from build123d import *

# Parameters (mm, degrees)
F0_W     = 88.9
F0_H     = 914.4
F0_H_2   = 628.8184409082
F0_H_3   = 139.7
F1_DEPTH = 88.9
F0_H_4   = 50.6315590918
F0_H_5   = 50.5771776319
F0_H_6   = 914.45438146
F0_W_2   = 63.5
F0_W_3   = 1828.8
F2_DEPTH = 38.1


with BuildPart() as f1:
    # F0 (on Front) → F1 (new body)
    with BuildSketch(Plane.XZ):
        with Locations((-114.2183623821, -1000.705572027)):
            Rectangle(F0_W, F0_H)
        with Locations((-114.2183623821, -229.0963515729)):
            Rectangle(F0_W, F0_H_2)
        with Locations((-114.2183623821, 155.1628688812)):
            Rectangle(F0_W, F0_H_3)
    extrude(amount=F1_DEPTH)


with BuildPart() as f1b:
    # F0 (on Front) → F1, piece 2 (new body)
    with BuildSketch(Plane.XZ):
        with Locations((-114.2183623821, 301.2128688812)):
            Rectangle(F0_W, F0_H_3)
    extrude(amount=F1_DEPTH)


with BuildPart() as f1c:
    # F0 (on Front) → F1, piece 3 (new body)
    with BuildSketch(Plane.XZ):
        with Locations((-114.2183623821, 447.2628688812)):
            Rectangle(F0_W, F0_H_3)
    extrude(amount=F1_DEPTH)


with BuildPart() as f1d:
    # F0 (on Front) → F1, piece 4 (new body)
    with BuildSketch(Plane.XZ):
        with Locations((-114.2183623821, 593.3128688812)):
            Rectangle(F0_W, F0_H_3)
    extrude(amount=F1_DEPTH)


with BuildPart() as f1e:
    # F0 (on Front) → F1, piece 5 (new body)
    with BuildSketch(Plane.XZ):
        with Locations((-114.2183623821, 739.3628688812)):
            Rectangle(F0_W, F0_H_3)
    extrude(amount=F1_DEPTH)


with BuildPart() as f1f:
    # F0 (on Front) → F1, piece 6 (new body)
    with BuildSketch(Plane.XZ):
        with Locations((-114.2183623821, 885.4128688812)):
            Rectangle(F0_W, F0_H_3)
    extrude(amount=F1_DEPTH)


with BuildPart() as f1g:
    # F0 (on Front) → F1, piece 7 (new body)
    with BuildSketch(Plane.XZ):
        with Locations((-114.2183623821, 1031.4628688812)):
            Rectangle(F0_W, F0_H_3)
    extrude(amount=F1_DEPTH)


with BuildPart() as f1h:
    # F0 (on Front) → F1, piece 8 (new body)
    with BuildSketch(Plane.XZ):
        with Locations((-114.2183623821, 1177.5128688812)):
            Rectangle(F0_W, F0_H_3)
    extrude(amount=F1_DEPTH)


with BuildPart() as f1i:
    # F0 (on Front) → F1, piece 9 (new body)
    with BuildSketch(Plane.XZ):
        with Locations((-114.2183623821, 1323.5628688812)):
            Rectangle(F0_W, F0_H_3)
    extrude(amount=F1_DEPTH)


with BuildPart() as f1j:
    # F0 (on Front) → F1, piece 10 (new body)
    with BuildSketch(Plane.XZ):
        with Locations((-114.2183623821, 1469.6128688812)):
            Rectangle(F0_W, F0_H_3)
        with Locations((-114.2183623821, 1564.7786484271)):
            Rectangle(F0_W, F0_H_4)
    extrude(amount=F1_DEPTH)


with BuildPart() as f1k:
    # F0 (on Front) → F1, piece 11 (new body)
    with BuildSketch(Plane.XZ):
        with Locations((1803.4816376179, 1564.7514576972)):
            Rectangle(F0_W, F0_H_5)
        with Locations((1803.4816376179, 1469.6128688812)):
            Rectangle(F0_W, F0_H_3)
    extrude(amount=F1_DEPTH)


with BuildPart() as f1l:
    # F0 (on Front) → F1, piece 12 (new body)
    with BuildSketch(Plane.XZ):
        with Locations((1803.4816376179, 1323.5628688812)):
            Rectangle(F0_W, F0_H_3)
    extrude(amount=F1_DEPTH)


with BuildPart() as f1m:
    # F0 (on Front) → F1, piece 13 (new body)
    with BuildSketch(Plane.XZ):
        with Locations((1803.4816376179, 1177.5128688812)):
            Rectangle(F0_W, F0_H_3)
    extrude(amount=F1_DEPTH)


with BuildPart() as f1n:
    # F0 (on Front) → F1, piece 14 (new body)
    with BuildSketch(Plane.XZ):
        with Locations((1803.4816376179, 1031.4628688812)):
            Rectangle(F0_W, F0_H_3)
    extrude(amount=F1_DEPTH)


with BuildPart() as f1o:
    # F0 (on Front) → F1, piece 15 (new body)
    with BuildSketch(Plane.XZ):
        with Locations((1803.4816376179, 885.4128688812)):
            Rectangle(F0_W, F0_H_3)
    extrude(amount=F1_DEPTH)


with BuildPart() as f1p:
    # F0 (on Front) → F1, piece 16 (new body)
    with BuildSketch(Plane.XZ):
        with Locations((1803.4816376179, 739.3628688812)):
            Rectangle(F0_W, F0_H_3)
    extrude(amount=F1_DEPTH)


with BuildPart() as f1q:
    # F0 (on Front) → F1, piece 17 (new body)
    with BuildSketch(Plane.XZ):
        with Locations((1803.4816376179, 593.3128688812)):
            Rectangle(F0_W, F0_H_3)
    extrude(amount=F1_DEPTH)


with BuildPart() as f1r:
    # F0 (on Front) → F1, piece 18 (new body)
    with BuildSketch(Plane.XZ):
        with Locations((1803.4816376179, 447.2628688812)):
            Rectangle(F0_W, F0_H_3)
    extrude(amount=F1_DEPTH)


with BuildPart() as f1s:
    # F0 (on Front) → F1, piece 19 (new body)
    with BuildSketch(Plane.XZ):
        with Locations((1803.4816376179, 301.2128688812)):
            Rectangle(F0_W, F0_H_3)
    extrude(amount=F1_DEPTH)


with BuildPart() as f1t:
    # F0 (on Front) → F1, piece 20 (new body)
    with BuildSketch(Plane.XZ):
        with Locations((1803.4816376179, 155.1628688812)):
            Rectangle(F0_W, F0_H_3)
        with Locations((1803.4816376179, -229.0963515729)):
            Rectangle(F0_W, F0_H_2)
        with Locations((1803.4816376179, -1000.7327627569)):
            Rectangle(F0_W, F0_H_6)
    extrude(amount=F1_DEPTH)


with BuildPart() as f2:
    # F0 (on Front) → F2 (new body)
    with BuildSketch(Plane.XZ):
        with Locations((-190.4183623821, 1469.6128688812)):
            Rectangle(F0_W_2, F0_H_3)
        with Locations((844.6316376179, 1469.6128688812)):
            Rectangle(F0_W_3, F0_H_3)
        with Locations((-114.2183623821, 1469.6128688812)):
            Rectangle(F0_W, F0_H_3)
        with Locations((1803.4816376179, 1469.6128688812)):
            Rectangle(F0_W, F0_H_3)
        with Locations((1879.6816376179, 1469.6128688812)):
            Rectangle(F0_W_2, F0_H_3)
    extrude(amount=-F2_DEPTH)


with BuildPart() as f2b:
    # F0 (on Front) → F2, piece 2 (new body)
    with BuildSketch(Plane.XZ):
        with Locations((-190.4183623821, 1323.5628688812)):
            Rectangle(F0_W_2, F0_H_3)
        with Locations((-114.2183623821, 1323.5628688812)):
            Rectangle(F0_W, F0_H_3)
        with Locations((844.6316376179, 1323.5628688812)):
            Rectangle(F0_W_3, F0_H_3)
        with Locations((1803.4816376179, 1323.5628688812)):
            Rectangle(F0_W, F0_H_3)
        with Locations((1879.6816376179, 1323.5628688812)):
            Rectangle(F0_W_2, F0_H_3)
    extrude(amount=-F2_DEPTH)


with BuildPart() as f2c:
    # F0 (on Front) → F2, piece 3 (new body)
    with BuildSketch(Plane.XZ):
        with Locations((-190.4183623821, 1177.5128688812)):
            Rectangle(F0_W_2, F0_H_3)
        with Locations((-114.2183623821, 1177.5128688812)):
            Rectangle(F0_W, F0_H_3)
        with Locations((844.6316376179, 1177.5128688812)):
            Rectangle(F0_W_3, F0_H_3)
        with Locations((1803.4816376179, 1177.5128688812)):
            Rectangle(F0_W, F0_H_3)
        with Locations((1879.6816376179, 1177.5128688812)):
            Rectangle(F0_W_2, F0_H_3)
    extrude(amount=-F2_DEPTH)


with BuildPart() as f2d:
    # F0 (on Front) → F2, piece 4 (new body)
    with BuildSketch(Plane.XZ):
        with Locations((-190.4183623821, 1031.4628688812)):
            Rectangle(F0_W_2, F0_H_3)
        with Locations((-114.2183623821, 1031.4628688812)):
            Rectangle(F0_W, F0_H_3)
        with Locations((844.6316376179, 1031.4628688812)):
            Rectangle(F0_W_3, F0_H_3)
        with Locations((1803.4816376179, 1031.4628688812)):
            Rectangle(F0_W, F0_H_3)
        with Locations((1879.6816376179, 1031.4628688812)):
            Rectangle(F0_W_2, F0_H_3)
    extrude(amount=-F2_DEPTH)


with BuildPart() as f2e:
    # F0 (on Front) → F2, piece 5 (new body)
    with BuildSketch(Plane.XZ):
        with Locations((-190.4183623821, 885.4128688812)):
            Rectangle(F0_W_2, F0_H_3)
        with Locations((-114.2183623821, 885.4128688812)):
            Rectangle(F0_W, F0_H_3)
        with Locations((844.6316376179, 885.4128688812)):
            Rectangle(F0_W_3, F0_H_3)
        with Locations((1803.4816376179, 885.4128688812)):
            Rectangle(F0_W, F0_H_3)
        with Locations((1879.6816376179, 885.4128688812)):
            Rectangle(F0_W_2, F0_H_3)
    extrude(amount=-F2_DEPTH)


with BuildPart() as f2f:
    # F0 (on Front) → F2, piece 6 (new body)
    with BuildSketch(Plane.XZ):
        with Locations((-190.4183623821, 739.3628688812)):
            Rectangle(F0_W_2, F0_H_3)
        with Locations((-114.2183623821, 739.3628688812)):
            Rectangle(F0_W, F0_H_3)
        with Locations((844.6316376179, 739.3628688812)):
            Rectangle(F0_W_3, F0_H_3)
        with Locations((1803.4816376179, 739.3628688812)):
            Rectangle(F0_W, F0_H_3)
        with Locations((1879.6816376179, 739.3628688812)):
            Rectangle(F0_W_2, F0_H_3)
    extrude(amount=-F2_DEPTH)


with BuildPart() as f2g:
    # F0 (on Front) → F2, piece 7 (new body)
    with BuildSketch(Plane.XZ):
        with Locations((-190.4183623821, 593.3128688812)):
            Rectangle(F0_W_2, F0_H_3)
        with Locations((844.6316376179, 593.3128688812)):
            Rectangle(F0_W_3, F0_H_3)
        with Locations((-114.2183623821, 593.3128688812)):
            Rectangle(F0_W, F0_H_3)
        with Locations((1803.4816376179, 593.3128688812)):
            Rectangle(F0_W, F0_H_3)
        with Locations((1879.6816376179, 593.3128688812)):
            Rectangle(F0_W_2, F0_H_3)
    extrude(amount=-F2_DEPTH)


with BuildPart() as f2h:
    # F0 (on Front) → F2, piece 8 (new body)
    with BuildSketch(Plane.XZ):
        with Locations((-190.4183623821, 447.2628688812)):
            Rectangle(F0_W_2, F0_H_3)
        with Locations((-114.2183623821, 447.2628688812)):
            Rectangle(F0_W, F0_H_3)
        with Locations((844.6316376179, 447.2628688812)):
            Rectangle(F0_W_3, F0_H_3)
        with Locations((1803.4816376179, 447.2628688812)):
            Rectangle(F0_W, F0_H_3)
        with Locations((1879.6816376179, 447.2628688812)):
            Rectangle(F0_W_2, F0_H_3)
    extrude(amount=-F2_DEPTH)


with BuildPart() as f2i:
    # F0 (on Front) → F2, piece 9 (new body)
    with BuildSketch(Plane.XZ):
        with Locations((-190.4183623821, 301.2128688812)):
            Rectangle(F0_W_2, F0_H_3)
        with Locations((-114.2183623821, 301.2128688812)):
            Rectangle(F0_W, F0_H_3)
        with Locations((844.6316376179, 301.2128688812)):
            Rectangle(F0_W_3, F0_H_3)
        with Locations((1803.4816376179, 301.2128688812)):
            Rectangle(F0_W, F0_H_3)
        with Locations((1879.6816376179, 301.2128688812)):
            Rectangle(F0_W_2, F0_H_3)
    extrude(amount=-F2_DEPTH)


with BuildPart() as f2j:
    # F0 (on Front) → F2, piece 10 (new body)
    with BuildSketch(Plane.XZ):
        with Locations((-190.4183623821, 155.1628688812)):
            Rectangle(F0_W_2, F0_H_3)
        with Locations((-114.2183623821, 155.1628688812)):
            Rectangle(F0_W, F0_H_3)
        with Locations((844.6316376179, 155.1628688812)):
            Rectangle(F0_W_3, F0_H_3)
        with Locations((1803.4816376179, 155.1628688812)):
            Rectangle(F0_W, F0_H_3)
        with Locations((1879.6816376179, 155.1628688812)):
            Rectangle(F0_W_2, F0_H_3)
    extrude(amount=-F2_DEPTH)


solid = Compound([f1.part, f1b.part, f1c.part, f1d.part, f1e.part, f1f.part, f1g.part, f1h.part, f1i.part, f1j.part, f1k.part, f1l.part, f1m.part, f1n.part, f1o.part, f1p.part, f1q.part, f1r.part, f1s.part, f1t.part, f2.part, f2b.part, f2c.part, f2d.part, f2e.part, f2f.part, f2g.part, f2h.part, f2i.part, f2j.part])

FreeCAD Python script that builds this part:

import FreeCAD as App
import Part
import Sketcher

V = App.Vector
Q = App.Units.Quantity


def add_polygon(sketch, points):
    """Adds a closed chain of lines whose ends are joined by coincident constraints."""
    first, n = sketch.GeometryCount, len(points)
    for a, b in zip(points, points[1:] + points[:1]):
        sketch.addGeometry(Part.LineSegment(App.Vector(*a, 0), App.Vector(*b, 0)), False)
    for i in range(n):
        sketch.addConstraint(Sketcher.Constraint("Coincident", first + i, 2, first + (i + 1) % n, 1))

doc = App.newDocument("Part")
body = doc.addObject("PartDesign::Body", "Body")

sketch1 = body.newObject("Sketcher::SketchObject", "Sketch")
sketch1.AttachmentSupport = (doc.getObject("XZ_Plane"), [""])
sketch1.MapMode = "FlatFace"
add_polygon(sketch1, [(-159, -1458), (-70, -1458), (-70, 225), (-159, 225)])
sketch1.addConstraint([
    Sketcher.Constraint("Horizontal", 0),
    Sketcher.Constraint("Vertical", 1),
    Sketcher.Constraint("Horizontal", 2),
    Sketcher.Constraint("Vertical", 3),
    Sketcher.Constraint("DistanceX", 0, 1, 0, 2, Q("3.5 in")),
    Sketcher.Constraint("DistanceY", 1, 1, 1, 2, Q("1682.918441 mm")),
    Sketcher.Constraint("DistanceY", -1, 1, 1, 2, Q("225.012869 mm")),
    Sketcher.Constraint("DistanceX", 0, 2, -1, 1, Q("69.768362 mm")),
])
pad1 = body.newObject("PartDesign::Pad", "Pad")
pad1.Profile = sketch1
pad1.Length = Q("3.5 in")
body2 = doc.addObject("PartDesign::Body", "Body001")

sketch2 = body2.newObject("Sketcher::SketchObject", "Sketch001")
sketch2.AttachmentSupport = (doc.getObject("XZ_Plane001"), [""])
sketch2.MapMode = "FlatFace"
add_polygon(sketch2, [(-159, 371), (-159, 231), (-70, 231), (-70, 371)])
sketch2.addConstraint([
    Sketcher.Constraint("Vertical", 0),
    Sketcher.Constraint("Horizontal", 1),
    Sketcher.Constraint("Vertical", 2),
    Sketcher.Constraint("Horizontal", 3),
    Sketcher.Constraint("DistanceX", 1, 1, 1, 2, Q("3.5 in")),
    Sketcher.Constraint("DistanceY", 0, 2, 0, 1, Q("5.5 in")),
    Sketcher.Constraint("DistanceY", -1, 1, 0, 2, Q("231.362869 mm")),
    Sketcher.Constraint("DistanceX", 0, 2, -1, 1, Q("158.668362 mm")),
])
pad2 = body2.newObject("PartDesign::Pad", "Pad001")
pad2.Profile = sketch2
pad2.Length = Q("3.5 in")
body3 = doc.addObject("PartDesign::Body", "Body002")

sketch3 = body3.newObject("Sketcher::SketchObject", "Sketch002")
sketch3.AttachmentSupport = (doc.getObject("XZ_Plane002"), [""])
sketch3.MapMode = "FlatFace"
add_polygon(sketch3, [(-159, 517), (-159, 377), (-70, 377), (-70, 517)])
sketch3.addConstraint([
    Sketcher.Constraint("Vertical", 0),
    Sketcher.Constraint("Horizontal", 1),
    Sketcher.Constraint("Vertical", 2),
    Sketcher.Constraint("Horizontal", 3),
    Sketcher.Constraint("DistanceX", 1, 1, 1, 2, Q("3.5 in")),
    Sketcher.Constraint("DistanceY", 0, 2, 0, 1, Q("5.5 in")),
    Sketcher.Constraint("DistanceY", -1, 1, 0, 2, Q("377.412869 mm")),
    Sketcher.Constraint("DistanceX", 0, 2, -1, 1, Q("158.668362 mm")),
])
pad3 = body3.newObject("PartDesign::Pad", "Pad002")
pad3.Profile = sketch3
pad3.Length = Q("3.5 in")
body4 = doc.addObject("PartDesign::Body", "Body003")

sketch4 = body4.newObject("Sketcher::SketchObject", "Sketch003")
sketch4.AttachmentSupport = (doc.getObject("XZ_Plane003"), [""])
sketch4.MapMode = "FlatFace"
add_polygon(sketch4, [(-159, 663), (-159, 523), (-70, 523), (-70, 663)])
sketch4.addConstraint([
    Sketcher.Constraint("Vertical", 0),
    Sketcher.Constraint("Horizontal", 1),
    Sketcher.Constraint("Vertical", 2),
    Sketcher.Constraint("Horizontal", 3),
    Sketcher.Constraint("DistanceX", 1, 1, 1, 2, Q("3.5 in")),
    Sketcher.Constraint("DistanceY", 0, 2, 0, 1, Q("5.5 in")),
    Sketcher.Constraint("DistanceY", -1, 1, 0, 2, Q("523.462869 mm")),
    Sketcher.Constraint("DistanceX", 0, 2, -1, 1, Q("158.668362 mm")),
])
pad4 = body4.newObject("PartDesign::Pad", "Pad003")
pad4.Profile = sketch4
pad4.Length = Q("3.5 in")
body5 = doc.addObject("PartDesign::Body", "Body004")

sketch5 = body5.newObject("Sketcher::SketchObject", "Sketch004")
sketch5.AttachmentSupport = (doc.getObject("XZ_Plane004"), [""])
sketch5.MapMode = "FlatFace"
add_polygon(sketch5, [(-159, 809), (-159, 670), (-70, 670), (-70, 809)])
sketch5.addConstraint([
    Sketcher.Constraint("Vertical", 0),
    Sketcher.Constraint("Horizontal", 1),
    Sketcher.Constraint("Vertical", 2),
    Sketcher.Constraint("Horizontal", 3),
    Sketcher.Constraint("DistanceX", 1, 1, 1, 2, Q("3.5 in")),
    Sketcher.Constraint("DistanceY", 0, 2, 0, 1, Q("5.5 in")),
    Sketcher.Constraint("DistanceY", -1, 1, 0, 2, Q("669.512869 mm")),
    Sketcher.Constraint("DistanceX", 0, 2, -1, 1, Q("158.668362 mm")),
])
pad5 = body5.newObject("PartDesign::Pad", "Pad004")
pad5.Profile = sketch5
pad5.Length = Q("3.5 in")
body6 = doc.addObject("PartDesign::Body", "Body005")

sketch6 = body6.newObject("Sketcher::SketchObject", "Sketch005")
sketch6.AttachmentSupport = (doc.getObject("XZ_Plane005"), [""])
sketch6.MapMode = "FlatFace"
add_polygon(sketch6, [(-159, 955), (-159, 816), (-70, 816), (-70, 955)])
sketch6.addConstraint([
    Sketcher.Constraint("Vertical", 0),
    Sketcher.Constraint("Horizontal", 1),
    Sketcher.Constraint("Vertical", 2),
    Sketcher.Constraint("Horizontal", 3),
    Sketcher.Constraint("DistanceX", 1, 1, 1, 2, Q("3.5 in")),
    Sketcher.Constraint("DistanceY", 0, 2, 0, 1, Q("5.5 in")),
    Sketcher.Constraint("DistanceY", -1, 1, 0, 2, Q("815.562869 mm")),
    Sketcher.Constraint("DistanceX", 0, 2, -1, 1, Q("158.668362 mm")),
])
pad6 = body6.newObject("PartDesign::Pad", "Pad005")
pad6.Profile = sketch6
pad6.Length = Q("3.5 in")
body7 = doc.addObject("PartDesign::Body", "Body006")

sketch7 = body7.newObject("Sketcher::SketchObject", "Sketch006")
sketch7.AttachmentSupport = (doc.getObject("XZ_Plane006"), [""])
sketch7.MapMode = "FlatFace"
add_polygon(sketch7, [(-159, 1101), (-159, 962), (-70, 962), (-70, 1101)])
sketch7.addConstraint([
    Sketcher.Constraint("Vertical", 0),
    Sketcher.Constraint("Horizontal", 1),
    Sketcher.Constraint("Vertical", 2),
    Sketcher.Constraint("Horizontal", 3),
    Sketcher.Constraint("DistanceX", 1, 1, 1, 2, Q("3.5 in")),
    Sketcher.Constraint("DistanceY", 0, 2, 0, 1, Q("5.5 in")),
    Sketcher.Constraint("DistanceY", -1, 1, 0, 2, Q("961.612869 mm")),
    Sketcher.Constraint("DistanceX", 0, 2, -1, 1, Q("158.668362 mm")),
])
pad7 = body7.newObject("PartDesign::Pad", "Pad006")
pad7.Profile = sketch7
pad7.Length = Q("3.5 in")
body8 = doc.addObject("PartDesign::Body", "Body007")

sketch8 = body8.newObject("Sketcher::SketchObject", "Sketch007")
sketch8.AttachmentSupport = (doc.getObject("XZ_Plane007"), [""])
sketch8.MapMode = "FlatFace"
add_polygon(sketch8, [(-159, 1247), (-159, 1108), (-70, 1108), (-70, 1247)])
sketch8.addConstraint([
    Sketcher.Constraint("Vertical", 0),
    Sketcher.Constraint("Horizontal", 1),
    Sketcher.Constraint("Vertical", 2),
    Sketcher.Constraint("Horizontal", 3),
    Sketcher.Constraint("DistanceX", 1, 1, 1, 2, Q("3.5 in")),
    Sketcher.Constraint("DistanceY", 0, 2, 0, 1, Q("5.5 in")),
    Sketcher.Constraint("DistanceY", -1, 1, 0, 2, Q("1107.662869 mm")),
    Sketcher.Constraint("DistanceX", 0, 2, -1, 1, Q("158.668362 mm")),
])
pad8 = body8.newObject("PartDesign::Pad", "Pad007")
pad8.Profile = sketch8
pad8.Length = Q("3.5 in")
body9 = doc.addObject("PartDesign::Body", "Body008")

sketch9 = body9.newObject("Sketcher::SketchObject", "Sketch008")
sketch9.AttachmentSupport = (doc.getObject("XZ_Plane008"), [""])
sketch9.MapMode = "FlatFace"
add_polygon(sketch9, [(-159, 1393), (-159, 1254), (-70, 1254), (-70, 1393)])
sketch9.addConstraint([
    Sketcher.Constraint("Vertical", 0),
    Sketcher.Constraint("Horizontal", 1),
    Sketcher.Constraint("Vertical", 2),
    Sketcher.Constraint("Horizontal", 3),
    Sketcher.Constraint("DistanceX", 1, 1, 1, 2, Q("3.5 in")),
    Sketcher.Constraint("DistanceY", 0, 2, 0, 1, Q("5.5 in")),
    Sketcher.Constraint("DistanceY", -1, 1, 0, 2, Q("1253.712869 mm")),
    Sketcher.Constraint("DistanceX", 0, 2, -1, 1, Q("158.668362 mm")),
])
pad9 = body9.newObject("PartDesign::Pad", "Pad008")
pad9.Profile = sketch9
pad9.Length = Q("3.5 in")
body10 = doc.addObject("PartDesign::Body", "Body009")

sketch10 = body10.newObject("Sketcher::SketchObject", "Sketch009")
sketch10.AttachmentSupport = (doc.getObject("XZ_Plane009"), [""])
sketch10.MapMode = "FlatFace"
add_polygon(sketch10, [(-159, 1400), (-70, 1400), (-70, 1590), (-159, 1590)])
sketch10.addConstraint([
    Sketcher.Constraint("Horizontal", 0),
    Sketcher.Constraint("Vertical", 1),
    Sketcher.Constraint("Horizontal", 2),
    Sketcher.Constraint("Vertical", 3),
    Sketcher.Constraint("DistanceX", 0, 1, 0, 2, Q("3.5 in")),
    Sketcher.Constraint("DistanceY", 1, 1, 1, 2, Q("190.331559 mm")),
    Sketcher.Constraint("DistanceY", -1, 1, 0, 2, Q("1399.762869 mm")),
    Sketcher.Constraint("DistanceX", 0, 2, -1, 1, Q("69.768362 mm")),
])
pad10 = body10.newObject("PartDesign::Pad", "Pad009")
pad10.Profile = sketch10
pad10.Length = Q("3.5 in")
body11 = doc.addObject("PartDesign::Body", "Body010")

sketch11 = body11.newObject("Sketcher::SketchObject", "Sketch010")
sketch11.AttachmentSupport = (doc.getObject("XZ_Plane010"), [""])
sketch11.MapMode = "FlatFace"
add_polygon(sketch11, [(1759, 1590), (1759, 1400), (1848, 1400), (1848, 1590)])
sketch11.addConstraint([
    Sketcher.Constraint("Vertical", 0),
    Sketcher.Constraint("Horizontal", 1),
    Sketcher.Constraint("Vertical", 2),
    Sketcher.Constraint("Horizontal", 3),
    Sketcher.Constraint("DistanceX", 1, 1, 1, 2, Q("3.5 in")),
    Sketcher.Constraint("DistanceY", 0, 2, 0, 1, Q("190.277178 mm")),
    Sketcher.Constraint("DistanceY", -1, 1, 0, 2, Q("1399.762869 mm")),
    Sketcher.Constraint("DistanceX", -1, 1, 0, 2, Q("1759.031638 mm")),
])
pad11 = body11.newObject("PartDesign::Pad", "Pad010")
pad11.Profile = sketch11
pad11.Length = Q("3.5 in")
body12 = doc.addObject("PartDesign::Body", "Body011")

sketch12 = body12.newObject("Sketcher::SketchObject", "Sketch011")
sketch12.AttachmentSupport = (doc.getObject("XZ_Plane011"), [""])
sketch12.MapMode = "FlatFace"
add_polygon(sketch12, [(1759, 1393), (1759, 1254), (1848, 1254), (1848, 1393)])
sketch12.addConstraint([
    Sketcher.Constraint("Vertical", 0),
    Sketcher.Constraint("Horizontal", 1),
    Sketcher.Constraint("Vertical", 2),
    Sketcher.Constraint("Horizontal", 3),
    Sketcher.Constraint("DistanceX", 1, 1, 1, 2, Q("3.5 in")),
    Sketcher.Constraint("DistanceY", 0, 2, 0, 1, Q("5.5 in")),
    Sketcher.Constraint("DistanceY", -1, 1, 0, 2, Q("1253.712869 mm")),
    Sketcher.Constraint("DistanceX", -1, 1, 0, 2, Q("1759.031638 mm")),
])
pad12 = body12.newObject("PartDesign::Pad", "Pad011")
pad12.Profile = sketch12
pad12.Length = Q("3.5 in")
body13 = doc.addObject("PartDesign::Body", "Body012")

sketch13 = body13.newObject("Sketcher::SketchObject", "Sketch012")
sketch13.AttachmentSupport = (doc.getObject("XZ_Plane012"), [""])
sketch13.MapMode = "FlatFace"
add_polygon(sketch13, [(1759, 1247), (1759, 1108), (1848, 1108), (1848, 1247)])
sketch13.addConstraint([
    Sketcher.Constraint("Vertical", 0),
    Sketcher.Constraint("Horizontal", 1),
    Sketcher.Constraint("Vertical", 2),
    Sketcher.Constraint("Horizontal", 3),
    Sketcher.Constraint("DistanceX", 1, 1, 1, 2, Q("3.5 in")),
    Sketcher.Constraint("DistanceY", 0, 2, 0, 1, Q("5.5 in")),
    Sketcher.Constraint("DistanceY", -1, 1, 0, 2, Q("1107.662869 mm")),
    Sketcher.Constraint("DistanceX", -1, 1, 0, 2, Q("1759.031638 mm")),
])
pad13 = body13.newObject("PartDesign::Pad", "Pad012")
pad13.Profile = sketch13
pad13.Length = Q("3.5 in")
body14 = doc.addObject("PartDesign::Body", "Body013")

sketch14 = body14.newObject("Sketcher::SketchObject", "Sketch013")
sketch14.AttachmentSupport = (doc.getObject("XZ_Plane013"), [""])
sketch14.MapMode = "FlatFace"
add_polygon(sketch14, [(1759, 1101), (1759, 962), (1848, 962), (1848, 1101)])
sketch14.addConstraint([
    Sketcher.Constraint("Vertical", 0),
    Sketcher.Constraint("Horizontal", 1),
    Sketcher.Constraint("Vertical", 2),
    Sketcher.Constraint("Horizontal", 3),
    Sketcher.Constraint("DistanceX", 1, 1, 1, 2, Q("3.5 in")),
    Sketcher.Constraint("DistanceY", 0, 2, 0, 1, Q("5.5 in")),
    Sketcher.Constraint("DistanceY", -1, 1, 0, 2, Q("961.612869 mm")),
    Sketcher.Constraint("DistanceX", -1, 1, 0, 2, Q("1759.031638 mm")),
])
pad14 = body14.newObject("PartDesign::Pad", "Pad013")
pad14.Profile = sketch14
pad14.Length = Q("3.5 in")
body15 = doc.addObject("PartDesign::Body", "Body014")

sketch15 = body15.newObject("Sketcher::SketchObject", "Sketch014")
sketch15.AttachmentSupport = (doc.getObject("XZ_Plane014"), [""])
sketch15.MapMode = "FlatFace"
add_polygon(sketch15, [(1759, 955), (1759, 816), (1848, 816), (1848, 955)])
sketch15.addConstraint([
    Sketcher.Constraint("Vertical", 0),
    Sketcher.Constraint("Horizontal", 1),
    Sketcher.Constraint("Vertical", 2),
    Sketcher.Constraint("Horizontal", 3),
    Sketcher.Constraint("DistanceX", 1, 1, 1, 2, Q("3.5 in")),
    Sketcher.Constraint("DistanceY", 0, 2, 0, 1, Q("5.5 in")),
    Sketcher.Constraint("DistanceY", -1, 1, 0, 2, Q("815.562869 mm")),
    Sketcher.Constraint("DistanceX", -1, 1, 0, 2, Q("1759.031638 mm")),
])
pad15 = body15.newObject("PartDesign::Pad", "Pad014")
pad15.Profile = sketch15
pad15.Length = Q("3.5 in")
body16 = doc.addObject("PartDesign::Body", "Body015")

sketch16 = body16.newObject("Sketcher::SketchObject", "Sketch015")
sketch16.AttachmentSupport = (doc.getObject("XZ_Plane015"), [""])
sketch16.MapMode = "FlatFace"
add_polygon(sketch16, [(1759, 809), (1759, 670), (1848, 670), (1848, 809)])
sketch16.addConstraint([
    Sketcher.Constraint("Vertical", 0),
    Sketcher.Constraint("Horizontal", 1),
    Sketcher.Constraint("Vertical", 2),
    Sketcher.Constraint("Horizontal", 3),
    Sketcher.Constraint("DistanceX", 1, 1, 1, 2, Q("3.5 in")),
    Sketcher.Constraint("DistanceY", 0, 2, 0, 1, Q("5.5 in")),
    Sketcher.Constraint("DistanceY", -1, 1, 0, 2, Q("669.512869 mm")),
    Sketcher.Constraint("DistanceX", -1, 1, 0, 2, Q("1759.031638 mm")),
])
pad16 = body16.newObject("PartDesign::Pad", "Pad015")
pad16.Profile = sketch16
pad16.Length = Q("3.5 in")
body17 = doc.addObject("PartDesign::Body", "Body016")

sketch17 = body17.newObject("Sketcher::SketchObject", "Sketch016")
sketch17.AttachmentSupport = (doc.getObject("XZ_Plane016"), [""])
sketch17.MapMode = "FlatFace"
add_polygon(sketch17, [(1759, 663), (1759, 523), (1848, 523), (1848, 663)])
sketch17.addConstraint([
    Sketcher.Constraint("Vertical", 0),
    Sketcher.Constraint("Horizontal", 1),
    Sketcher.Constraint("Vertical", 2),
    Sketcher.Constraint("Horizontal", 3),
    Sketcher.Constraint("DistanceX", 1, 1, 1, 2, Q("3.5 in")),
    Sketcher.Constraint("DistanceY", 0, 2, 0, 1, Q("5.5 in")),
    Sketcher.Constraint("DistanceY", -1, 1, 0, 2, Q("523.462869 mm")),
    Sketcher.Constraint("DistanceX", -1, 1, 0, 2, Q("1759.031638 mm")),
])
pad17 = body17.newObject("PartDesign::Pad", "Pad016")
pad17.Profile = sketch17
pad17.Length = Q("3.5 in")
body18 = doc.addObject("PartDesign::Body", "Body017")

sketch18 = body18.newObject("Sketcher::SketchObject", "Sketch017")
sketch18.AttachmentSupport = (doc.getObject("XZ_Plane017"), [""])
sketch18.MapMode = "FlatFace"
add_polygon(sketch18, [(1759, 517), (1759, 377), (1848, 377), (1848, 517)])
sketch18.addConstraint([
    Sketcher.Constraint("Vertical", 0),
    Sketcher.Constraint("Horizontal", 1),
    Sketcher.Constraint("Vertical", 2),
    Sketcher.Constraint("Horizontal", 3),
    Sketcher.Constraint("DistanceX", 1, 1, 1, 2, Q("3.5 in")),
    Sketcher.Constraint("DistanceY", 0, 2, 0, 1, Q("5.5 in")),
    Sketcher.Constraint("DistanceY", -1, 1, 0, 2, Q("377.412869 mm")),
    Sketcher.Constraint("DistanceX", -1, 1, 0, 2, Q("1759.031638 mm")),
])
pad18 = body18.newObject("PartDesign::Pad", "Pad017")
pad18.Profile = sketch18
pad18.Length = Q("3.5 in")
body19 = doc.addObject("PartDesign::Body", "Body018")

sketch19 = body19.newObject("Sketcher::SketchObject", "Sketch018")
sketch19.AttachmentSupport = (doc.getObject("XZ_Plane018"), [""])
sketch19.MapMode = "FlatFace"
add_polygon(sketch19, [(1759, 371), (1759, 231), (1848, 231), (1848, 371)])
sketch19.addConstraint([
    Sketcher.Constraint("Vertical", 0),
    Sketcher.Constraint("Horizontal", 1),
    Sketcher.Constraint("Vertical", 2),
    Sketcher.Constraint("Horizontal", 3),
    Sketcher.Constraint("DistanceX", 1, 1, 1, 2, Q("3.5 in")),
    Sketcher.Constraint("DistanceY", 0, 2, 0, 1, Q("5.5 in")),
    Sketcher.Constraint("DistanceY", -1, 1, 0, 2, Q("231.362869 mm")),
    Sketcher.Constraint("DistanceX", -1, 1, 0, 2, Q("1759.031638 mm")),
])
pad19 = body19.newObject("PartDesign::Pad", "Pad018")
pad19.Profile = sketch19
pad19.Length = Q("3.5 in")
body20 = doc.addObject("PartDesign::Body", "Body019")

sketch20 = body20.newObject("Sketcher::SketchObject", "Sketch019")
sketch20.AttachmentSupport = (doc.getObject("XZ_Plane019"), [""])
sketch20.MapMode = "FlatFace"
add_polygon(sketch20, [(1759, 225), (1759, -1458), (1848, -1458), (1848, 225)])
sketch20.addConstraint([
    Sketcher.Constraint("Vertical", 0),
    Sketcher.Constraint("Horizontal", 1),
    Sketcher.Constraint("Vertical", 2),
    Sketcher.Constraint("Horizontal", 3),
    Sketcher.Constraint("DistanceX", 1, 1, 1, 2, Q("3.5 in")),
    Sketcher.Constraint("DistanceY", 0, 2, 0, 1, Q("1682.972822 mm")),
    Sketcher.Constraint("DistanceY", -1, 1, 2, 2, Q("225.012869 mm")),
    Sketcher.Constraint("DistanceX", -1, 1, 0, 2, Q("1759.031638 mm")),
])
pad20 = body20.newObject("PartDesign::Pad", "Pad019")
pad20.Profile = sketch20
pad20.Length = Q("3.5 in")
body21 = doc.addObject("PartDesign::Body", "Body020")

sketch21 = body21.newObject("Sketcher::SketchObject", "Sketch020")
sketch21.AttachmentSupport = (doc.getObject("XZ_Plane020"), [""])
sketch21.MapMode = "FlatFace"
add_polygon(sketch21, [(-222, 1539), (-222, 1400), (1911, 1400), (1911, 1539)])
sketch21.addConstraint([
    Sketcher.Constraint("Vertical", 0),
    Sketcher.Constraint("Horizontal", 1),
    Sketcher.Constraint("Vertical", 2),
    Sketcher.Constraint("Horizontal", 3),
    Sketcher.Constraint("DistanceX", 1, 1, 1, 2, Q("84 in")),
    Sketcher.Constraint("DistanceY", 0, 2, 0, 1, Q("5.5 in")),
    Sketcher.Constraint("DistanceY", -1, 1, 0, 2, Q("1399.762869 mm")),
    Sketcher.Constraint("DistanceX", 0, 2, -1, 1, Q("222.168362 mm")),
])
pad21 = body21.newObject("PartDesign::Pad", "Pad020")
pad21.Profile = sketch21
pad21.Length = Q("1.5 in")
pad21.Reversed = True
body22 = doc.addObject("PartDesign::Body", "Body021")

sketch22 = body22.newObject("Sketcher::SketchObject", "Sketch021")
sketch22.AttachmentSupport = (doc.getObject("XZ_Plane021"), [""])
sketch22.MapMode = "FlatFace"
add_polygon(sketch22, [(-222, 1393), (-222, 1254), (1911, 1254), (1911, 1393)])
sketch22.addConstraint([
    Sketcher.Constraint("Vertical", 0),
    Sketcher.Constraint("Horizontal", 1),
    Sketcher.Constraint("Vertical", 2),
    Sketcher.Constraint("Horizontal", 3),
    Sketcher.Constraint("DistanceX", 1, 1, 1, 2, Q("84 in")),
    Sketcher.Constraint("DistanceY", 0, 2, 0, 1, Q("5.5 in")),
    Sketcher.Constraint("DistanceY", -1, 1, 0, 2, Q("1253.712869 mm")),
    Sketcher.Constraint("DistanceX", 0, 2, -1, 1, Q("222.168362 mm")),
])
pad22 = body22.newObject("PartDesign::Pad", "Pad021")
pad22.Profile = sketch22
pad22.Length = Q("1.5 in")
pad22.Reversed = True
body23 = doc.addObject("PartDesign::Body", "Body022")

sketch23 = body23.newObject("Sketcher::SketchObject", "Sketch022")
sketch23.AttachmentSupport = (doc.getObject("XZ_Plane022"), [""])
sketch23.MapMode = "FlatFace"
add_polygon(sketch23, [(-222, 1247), (-222, 1108), (1911, 1108), (1911, 1247)])
sketch23.addConstraint([
    Sketcher.Constraint("Vertical", 0),
    Sketcher.Constraint("Horizontal", 1),
    Sketcher.Constraint("Vertical", 2),
    Sketcher.Constraint("Horizontal", 3),
    Sketcher.Constraint("DistanceX", 1, 1, 1, 2, Q("84 in")),
    Sketcher.Constraint("DistanceY", 0, 2, 0, 1, Q("5.5 in")),
    Sketcher.Constraint("DistanceY", -1, 1, 0, 2, Q("1107.662869 mm")),
    Sketcher.Constraint("DistanceX", 0, 2, -1, 1, Q("222.168362 mm")),
])
pad23 = body23.newObject("PartDesign::Pad", "Pad022")
pad23.Profile = sketch23
pad23.Length = Q("1.5 in")
pad23.Reversed = True
body24 = doc.addObject("PartDesign::Body", "Body023")

sketch24 = body24.newObject("Sketcher::SketchObject", "Sketch023")
sketch24.AttachmentSupport = (doc.getObject("XZ_Plane023"), [""])
sketch24.MapMode = "FlatFace"
add_polygon(sketch24, [(-222, 1101), (-222, 962), (1911, 962), (1911, 1101)])
sketch24.addConstraint([
    Sketcher.Constraint("Vertical", 0),
    Sketcher.Constraint("Horizontal", 1),
    Sketcher.Constraint("Vertical", 2),
    Sketcher.Constraint("Horizontal", 3),
    Sketcher.Constraint("DistanceX", 1, 1, 1, 2, Q("84 in")),
    Sketcher.Constraint("DistanceY", 0, 2, 0, 1, Q("5.5 in")),
    Sketcher.Constraint("DistanceY", -1, 1, 0, 2, Q("961.612869 mm")),
    Sketcher.Constraint("DistanceX", 0, 2, -1, 1, Q("222.168362 mm")),
])
pad24 = body24.newObject("PartDesign::Pad", "Pad023")
pad24.Profile = sketch24
pad24.Length = Q("1.5 in")
pad24.Reversed = True
body25 = doc.addObject("PartDesign::Body", "Body024")

sketch25 = body25.newObject("Sketcher::SketchObject", "Sketch024")
sketch25.AttachmentSupport = (doc.getObject("XZ_Plane024"), [""])
sketch25.MapMode = "FlatFace"
add_polygon(sketch25, [(-222, 955), (-222, 816), (1911, 816), (1911, 955)])
sketch25.addConstraint([
    Sketcher.Constraint("Vertical", 0),
    Sketcher.Constraint("Horizontal", 1),
    Sketcher.Constraint("Vertical", 2),
    Sketcher.Constraint("Horizontal", 3),
    Sketcher.Constraint("DistanceX", 1, 1, 1, 2, Q("84 in")),
    Sketcher.Constraint("DistanceY", 0, 2, 0, 1, Q("5.5 in")),
    Sketcher.Constraint("DistanceY", -1, 1, 0, 2, Q("815.562869 mm")),
    Sketcher.Constraint("DistanceX", 0, 2, -1, 1, Q("222.168362 mm")),
])
pad25 = body25.newObject("PartDesign::Pad", "Pad024")
pad25.Profile = sketch25
pad25.Length = Q("1.5 in")
pad25.Reversed = True
body26 = doc.addObject("PartDesign::Body", "Body025")

sketch26 = body26.newObject("Sketcher::SketchObject", "Sketch025")
sketch26.AttachmentSupport = (doc.getObject("XZ_Plane025"), [""])
sketch26.MapMode = "FlatFace"
add_polygon(sketch26, [(-222, 809), (-222, 670), (1911, 670), (1911, 809)])
sketch26.addConstraint([
    Sketcher.Constraint("Vertical", 0),
    Sketcher.Constraint("Horizontal", 1),
    Sketcher.Constraint("Vertical", 2),
    Sketcher.Constraint("Horizontal", 3),
    Sketcher.Constraint("DistanceX", 1, 1, 1, 2, Q("84 in")),
    Sketcher.Constraint("DistanceY", 0, 2, 0, 1, Q("5.5 in")),
    Sketcher.Constraint("DistanceY", -1, 1, 0, 2, Q("669.512869 mm")),
    Sketcher.Constraint("DistanceX", 0, 2, -1, 1, Q("222.168362 mm")),
])
pad26 = body26.newObject("PartDesign::Pad", "Pad025")
pad26.Profile = sketch26
pad26.Length = Q("1.5 in")
pad26.Reversed = True
body27 = doc.addObject("PartDesign::Body", "Body026")

sketch27 = body27.newObject("Sketcher::SketchObject", "Sketch026")
sketch27.AttachmentSupport = (doc.getObject("XZ_Plane026"), [""])
sketch27.MapMode = "FlatFace"
add_polygon(sketch27, [(-222, 663), (-222, 523), (1911, 523), (1911, 663)])
sketch27.addConstraint([
    Sketcher.Constraint("Vertical", 0),
    Sketcher.Constraint("Horizontal", 1),
    Sketcher.Constraint("Vertical", 2),
    Sketcher.Constraint("Horizontal", 3),
    Sketcher.Constraint("DistanceX", 1, 1, 1, 2, Q("84 in")),
    Sketcher.Constraint("DistanceY", 0, 2, 0, 1, Q("5.5 in")),
    Sketcher.Constraint("DistanceY", -1, 1, 0, 2, Q("523.462869 mm")),
    Sketcher.Constraint("DistanceX", 0, 2, -1, 1, Q("222.168362 mm")),
])
pad27 = body27.newObject("PartDesign::Pad", "Pad026")
pad27.Profile = sketch27
pad27.Length = Q("1.5 in")
pad27.Reversed = True
body28 = doc.addObject("PartDesign::Body", "Body027")

sketch28 = body28.newObject("Sketcher::SketchObject", "Sketch027")
sketch28.AttachmentSupport = (doc.getObject("XZ_Plane027"), [""])
sketch28.MapMode = "FlatFace"
add_polygon(sketch28, [(-222, 517), (-222, 377), (1911, 377), (1911, 517)])
sketch28.addConstraint([
    Sketcher.Constraint("Vertical", 0),
    Sketcher.Constraint("Horizontal", 1),
    Sketcher.Constraint("Vertical", 2),
    Sketcher.Constraint("Horizontal", 3),
    Sketcher.Constraint("DistanceX", 1, 1, 1, 2, Q("84 in")),
    Sketcher.Constraint("DistanceY", 0, 2, 0, 1, Q("5.5 in")),
    Sketcher.Constraint("DistanceY", -1, 1, 0, 2, Q("377.412869 mm")),
    Sketcher.Constraint("DistanceX", 0, 2, -1, 1, Q("222.168362 mm")),
])
pad28 = body28.newObject("PartDesign::Pad", "Pad027")
pad28.Profile = sketch28
pad28.Length = Q("1.5 in")
pad28.Reversed = True
body29 = doc.addObject("PartDesign::Body", "Body028")

sketch29 = body29.newObject("Sketcher::SketchObject", "Sketch028")
sketch29.AttachmentSupport = (doc.getObject("XZ_Plane028"), [""])
sketch29.MapMode = "FlatFace"
add_polygon(sketch29, [(-222, 371), (-222, 231), (1911, 231), (1911, 371)])
sketch29.addConstraint([
    Sketcher.Constraint("Vertical", 0),
    Sketcher.Constraint("Horizontal", 1),
    Sketcher.Constraint("Vertical", 2),
    Sketcher.Constraint("Horizontal", 3),
    Sketcher.Constraint("DistanceX", 1, 1, 1, 2, Q("84 in")),
    Sketcher.Constraint("DistanceY", 0, 2, 0, 1, Q("5.5 in")),
    Sketcher.Constraint("DistanceY", -1, 1, 0, 2, Q("231.362869 mm")),
    Sketcher.Constraint("DistanceX", 0, 2, -1, 1, Q("222.168362 mm")),
])
pad29 = body29.newObject("PartDesign::Pad", "Pad028")
pad29.Profile = sketch29
pad29.Length = Q("1.5 in")
pad29.Reversed = True
body30 = doc.addObject("PartDesign::Body", "Body029")

sketch30 = body30.newObject("Sketcher::SketchObject", "Sketch029")
sketch30.AttachmentSupport = (doc.getObject("XZ_Plane029"), [""])
sketch30.MapMode = "FlatFace"
add_polygon(sketch30, [(-222, 225), (-222, 85), (1911, 85), (1911, 225)])
sketch30.addConstraint([
    Sketcher.Constraint("Vertical", 0),
    Sketcher.Constraint("Horizontal", 1),
    Sketcher.Constraint("Vertical", 2),
    Sketcher.Constraint("Horizontal", 3),
    Sketcher.Constraint("DistanceX", 1, 1, 1, 2, Q("84 in")),
    Sketcher.Constraint("DistanceY", 0, 2, 0, 1, Q("5.5 in")),
    Sketcher.Constraint("DistanceY", -1, 1, 0, 2, Q("85.312869 mm")),
    Sketcher.Constraint("DistanceX", 0, 2, -1, 1, Q("222.168362 mm")),
])
pad30 = body30.newObject("PartDesign::Pad", "Pad029")
pad30.Profile = sketch30
pad30.Length = Q("1.5 in")
pad30.Reversed = True

doc.recompute()
